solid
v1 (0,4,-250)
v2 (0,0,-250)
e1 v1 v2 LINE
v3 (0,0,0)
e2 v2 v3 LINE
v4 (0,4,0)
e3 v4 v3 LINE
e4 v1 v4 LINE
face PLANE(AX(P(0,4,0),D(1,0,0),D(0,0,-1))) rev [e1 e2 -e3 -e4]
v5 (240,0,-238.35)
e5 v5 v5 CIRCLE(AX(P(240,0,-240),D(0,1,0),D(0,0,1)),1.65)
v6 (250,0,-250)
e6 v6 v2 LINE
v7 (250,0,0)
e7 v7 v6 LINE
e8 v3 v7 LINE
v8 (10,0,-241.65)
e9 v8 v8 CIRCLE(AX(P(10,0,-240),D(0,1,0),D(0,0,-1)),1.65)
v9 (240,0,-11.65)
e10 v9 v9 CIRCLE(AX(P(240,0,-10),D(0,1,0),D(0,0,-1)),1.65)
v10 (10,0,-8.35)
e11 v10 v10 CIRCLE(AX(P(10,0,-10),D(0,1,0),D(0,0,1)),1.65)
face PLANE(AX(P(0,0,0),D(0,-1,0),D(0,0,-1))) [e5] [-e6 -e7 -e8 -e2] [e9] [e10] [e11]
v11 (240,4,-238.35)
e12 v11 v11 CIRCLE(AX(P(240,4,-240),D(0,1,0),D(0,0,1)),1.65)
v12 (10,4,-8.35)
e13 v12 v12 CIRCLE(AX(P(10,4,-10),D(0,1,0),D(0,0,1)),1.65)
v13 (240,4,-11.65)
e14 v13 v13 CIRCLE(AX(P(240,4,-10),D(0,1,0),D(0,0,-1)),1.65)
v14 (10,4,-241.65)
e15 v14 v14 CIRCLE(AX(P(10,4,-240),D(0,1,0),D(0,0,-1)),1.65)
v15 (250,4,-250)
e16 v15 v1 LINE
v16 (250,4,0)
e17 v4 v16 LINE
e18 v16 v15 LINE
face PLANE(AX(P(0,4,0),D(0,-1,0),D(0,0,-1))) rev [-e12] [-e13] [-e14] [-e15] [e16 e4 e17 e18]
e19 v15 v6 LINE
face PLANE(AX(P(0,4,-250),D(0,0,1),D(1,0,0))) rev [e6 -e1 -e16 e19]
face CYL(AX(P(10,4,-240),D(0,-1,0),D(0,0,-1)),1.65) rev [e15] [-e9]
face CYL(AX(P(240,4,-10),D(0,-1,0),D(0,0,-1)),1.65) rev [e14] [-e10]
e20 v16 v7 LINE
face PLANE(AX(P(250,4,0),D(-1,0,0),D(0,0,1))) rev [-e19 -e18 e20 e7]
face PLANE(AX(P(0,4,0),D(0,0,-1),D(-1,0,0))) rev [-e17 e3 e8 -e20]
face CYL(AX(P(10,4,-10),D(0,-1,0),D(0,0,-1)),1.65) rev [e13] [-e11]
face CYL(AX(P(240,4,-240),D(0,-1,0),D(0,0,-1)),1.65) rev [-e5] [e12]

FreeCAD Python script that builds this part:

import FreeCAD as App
import Part
import Sketcher

V = App.Vector
Q = App.Units.Quantity


def add_polygon(sketch, points):
    """Adds a closed chain of lines whose ends are joined by coincident constraints."""
    first, n = sketch.GeometryCount, len(points)
    for a, b in zip(points, points[1:] + points[:1]):
        sketch.addGeometry(Part.LineSegment(App.Vector(*a, 0), App.Vector(*b, 0)), False)
    for i in range(n):
        sketch.addConstraint(Sketcher.Constraint("Coincident", first + i, 2, first + (i + 1) % n, 1))

doc = App.newDocument("Part")
body = doc.addObject("PartDesign::Body", "Body")

sketch1 = doc.addObject("Sketcher::SketchObject", "Sketch")
body.addObject(sketch1)
sketch1.AttachmentSupport = (doc.XZ_Plane, [""])
sketch1.MapMode = "FlatFace"
add_polygon(sketch1, [(0, -250), (0, 0), (250, 0), (250, -250)])
sketch1.addGeometry(Part.Circle(V(10, -10, 0), V(0, 0, 1), 1.6), False)
sketch1.addGeometry(Part.Circle(V(240, -10, 0), V(0, 0, 1), 1.6), False)
sketch1.addGeometry(Part.Circle(V(10, -240, 0), V(0, 0, 1), 1.6), False)
sketch1.addGeometry(Part.Circle(V(240, -240, 0), V(0, 0, 1), 1.6), False)
sketch1.addConstraint([
    Sketcher.Constraint("Vertical", 0),
    Sketcher.Constraint("Horizontal", 1),
    Sketcher.Constraint("Vertical", 2),
    Sketcher.Constraint("Horizontal", 3),
    Sketcher.Constraint("Coincident", 0, 2, -1, 1),
    Sketcher.Constraint("Equal", 4, 5),
    Sketcher.Constraint("Equal", 5, 6),
    Sketcher.Constraint("Equal", 6, 7),
    Sketcher.Constraint("Horizontal", 4, 3, 5, 3),
    Sketcher.Constraint("Horizontal", 6, 3, 7, 3),
    Sketcher.Constraint("Vertical", 4, 3, 6, 3),
    Sketcher.Constraint("Vertical", 5, 3, 7, 3),
    Sketcher.Constraint("Equal", 3, 0),
    Sketcher.Constraint("Diameter", 4, Q("3.3 mm")),
    Sketcher.Constraint("DistanceX", 1, 1, 1, 2, Q("250 mm")),
    Sketcher.Constraint("DistanceX", -1, 1, 4, 3, Q("10 mm")),
    Sketcher.Constraint("DistanceY", 4, 3, -1, 1, Q("10 mm")),
    Sketcher.Constraint("DistanceX", -1, 1, 5, 3, Q("240 mm")),
    Sketcher.Constraint("DistanceY", 6, 3, -1, 1, Q("240 mm")),
])
pad1 = doc.addObject("PartDesign::Pad", "Pad")
body.addObject(pad1)
pad1.Profile = sketch1
pad1.Length = 4
pad1.Reversed = True

doc.recompute()
